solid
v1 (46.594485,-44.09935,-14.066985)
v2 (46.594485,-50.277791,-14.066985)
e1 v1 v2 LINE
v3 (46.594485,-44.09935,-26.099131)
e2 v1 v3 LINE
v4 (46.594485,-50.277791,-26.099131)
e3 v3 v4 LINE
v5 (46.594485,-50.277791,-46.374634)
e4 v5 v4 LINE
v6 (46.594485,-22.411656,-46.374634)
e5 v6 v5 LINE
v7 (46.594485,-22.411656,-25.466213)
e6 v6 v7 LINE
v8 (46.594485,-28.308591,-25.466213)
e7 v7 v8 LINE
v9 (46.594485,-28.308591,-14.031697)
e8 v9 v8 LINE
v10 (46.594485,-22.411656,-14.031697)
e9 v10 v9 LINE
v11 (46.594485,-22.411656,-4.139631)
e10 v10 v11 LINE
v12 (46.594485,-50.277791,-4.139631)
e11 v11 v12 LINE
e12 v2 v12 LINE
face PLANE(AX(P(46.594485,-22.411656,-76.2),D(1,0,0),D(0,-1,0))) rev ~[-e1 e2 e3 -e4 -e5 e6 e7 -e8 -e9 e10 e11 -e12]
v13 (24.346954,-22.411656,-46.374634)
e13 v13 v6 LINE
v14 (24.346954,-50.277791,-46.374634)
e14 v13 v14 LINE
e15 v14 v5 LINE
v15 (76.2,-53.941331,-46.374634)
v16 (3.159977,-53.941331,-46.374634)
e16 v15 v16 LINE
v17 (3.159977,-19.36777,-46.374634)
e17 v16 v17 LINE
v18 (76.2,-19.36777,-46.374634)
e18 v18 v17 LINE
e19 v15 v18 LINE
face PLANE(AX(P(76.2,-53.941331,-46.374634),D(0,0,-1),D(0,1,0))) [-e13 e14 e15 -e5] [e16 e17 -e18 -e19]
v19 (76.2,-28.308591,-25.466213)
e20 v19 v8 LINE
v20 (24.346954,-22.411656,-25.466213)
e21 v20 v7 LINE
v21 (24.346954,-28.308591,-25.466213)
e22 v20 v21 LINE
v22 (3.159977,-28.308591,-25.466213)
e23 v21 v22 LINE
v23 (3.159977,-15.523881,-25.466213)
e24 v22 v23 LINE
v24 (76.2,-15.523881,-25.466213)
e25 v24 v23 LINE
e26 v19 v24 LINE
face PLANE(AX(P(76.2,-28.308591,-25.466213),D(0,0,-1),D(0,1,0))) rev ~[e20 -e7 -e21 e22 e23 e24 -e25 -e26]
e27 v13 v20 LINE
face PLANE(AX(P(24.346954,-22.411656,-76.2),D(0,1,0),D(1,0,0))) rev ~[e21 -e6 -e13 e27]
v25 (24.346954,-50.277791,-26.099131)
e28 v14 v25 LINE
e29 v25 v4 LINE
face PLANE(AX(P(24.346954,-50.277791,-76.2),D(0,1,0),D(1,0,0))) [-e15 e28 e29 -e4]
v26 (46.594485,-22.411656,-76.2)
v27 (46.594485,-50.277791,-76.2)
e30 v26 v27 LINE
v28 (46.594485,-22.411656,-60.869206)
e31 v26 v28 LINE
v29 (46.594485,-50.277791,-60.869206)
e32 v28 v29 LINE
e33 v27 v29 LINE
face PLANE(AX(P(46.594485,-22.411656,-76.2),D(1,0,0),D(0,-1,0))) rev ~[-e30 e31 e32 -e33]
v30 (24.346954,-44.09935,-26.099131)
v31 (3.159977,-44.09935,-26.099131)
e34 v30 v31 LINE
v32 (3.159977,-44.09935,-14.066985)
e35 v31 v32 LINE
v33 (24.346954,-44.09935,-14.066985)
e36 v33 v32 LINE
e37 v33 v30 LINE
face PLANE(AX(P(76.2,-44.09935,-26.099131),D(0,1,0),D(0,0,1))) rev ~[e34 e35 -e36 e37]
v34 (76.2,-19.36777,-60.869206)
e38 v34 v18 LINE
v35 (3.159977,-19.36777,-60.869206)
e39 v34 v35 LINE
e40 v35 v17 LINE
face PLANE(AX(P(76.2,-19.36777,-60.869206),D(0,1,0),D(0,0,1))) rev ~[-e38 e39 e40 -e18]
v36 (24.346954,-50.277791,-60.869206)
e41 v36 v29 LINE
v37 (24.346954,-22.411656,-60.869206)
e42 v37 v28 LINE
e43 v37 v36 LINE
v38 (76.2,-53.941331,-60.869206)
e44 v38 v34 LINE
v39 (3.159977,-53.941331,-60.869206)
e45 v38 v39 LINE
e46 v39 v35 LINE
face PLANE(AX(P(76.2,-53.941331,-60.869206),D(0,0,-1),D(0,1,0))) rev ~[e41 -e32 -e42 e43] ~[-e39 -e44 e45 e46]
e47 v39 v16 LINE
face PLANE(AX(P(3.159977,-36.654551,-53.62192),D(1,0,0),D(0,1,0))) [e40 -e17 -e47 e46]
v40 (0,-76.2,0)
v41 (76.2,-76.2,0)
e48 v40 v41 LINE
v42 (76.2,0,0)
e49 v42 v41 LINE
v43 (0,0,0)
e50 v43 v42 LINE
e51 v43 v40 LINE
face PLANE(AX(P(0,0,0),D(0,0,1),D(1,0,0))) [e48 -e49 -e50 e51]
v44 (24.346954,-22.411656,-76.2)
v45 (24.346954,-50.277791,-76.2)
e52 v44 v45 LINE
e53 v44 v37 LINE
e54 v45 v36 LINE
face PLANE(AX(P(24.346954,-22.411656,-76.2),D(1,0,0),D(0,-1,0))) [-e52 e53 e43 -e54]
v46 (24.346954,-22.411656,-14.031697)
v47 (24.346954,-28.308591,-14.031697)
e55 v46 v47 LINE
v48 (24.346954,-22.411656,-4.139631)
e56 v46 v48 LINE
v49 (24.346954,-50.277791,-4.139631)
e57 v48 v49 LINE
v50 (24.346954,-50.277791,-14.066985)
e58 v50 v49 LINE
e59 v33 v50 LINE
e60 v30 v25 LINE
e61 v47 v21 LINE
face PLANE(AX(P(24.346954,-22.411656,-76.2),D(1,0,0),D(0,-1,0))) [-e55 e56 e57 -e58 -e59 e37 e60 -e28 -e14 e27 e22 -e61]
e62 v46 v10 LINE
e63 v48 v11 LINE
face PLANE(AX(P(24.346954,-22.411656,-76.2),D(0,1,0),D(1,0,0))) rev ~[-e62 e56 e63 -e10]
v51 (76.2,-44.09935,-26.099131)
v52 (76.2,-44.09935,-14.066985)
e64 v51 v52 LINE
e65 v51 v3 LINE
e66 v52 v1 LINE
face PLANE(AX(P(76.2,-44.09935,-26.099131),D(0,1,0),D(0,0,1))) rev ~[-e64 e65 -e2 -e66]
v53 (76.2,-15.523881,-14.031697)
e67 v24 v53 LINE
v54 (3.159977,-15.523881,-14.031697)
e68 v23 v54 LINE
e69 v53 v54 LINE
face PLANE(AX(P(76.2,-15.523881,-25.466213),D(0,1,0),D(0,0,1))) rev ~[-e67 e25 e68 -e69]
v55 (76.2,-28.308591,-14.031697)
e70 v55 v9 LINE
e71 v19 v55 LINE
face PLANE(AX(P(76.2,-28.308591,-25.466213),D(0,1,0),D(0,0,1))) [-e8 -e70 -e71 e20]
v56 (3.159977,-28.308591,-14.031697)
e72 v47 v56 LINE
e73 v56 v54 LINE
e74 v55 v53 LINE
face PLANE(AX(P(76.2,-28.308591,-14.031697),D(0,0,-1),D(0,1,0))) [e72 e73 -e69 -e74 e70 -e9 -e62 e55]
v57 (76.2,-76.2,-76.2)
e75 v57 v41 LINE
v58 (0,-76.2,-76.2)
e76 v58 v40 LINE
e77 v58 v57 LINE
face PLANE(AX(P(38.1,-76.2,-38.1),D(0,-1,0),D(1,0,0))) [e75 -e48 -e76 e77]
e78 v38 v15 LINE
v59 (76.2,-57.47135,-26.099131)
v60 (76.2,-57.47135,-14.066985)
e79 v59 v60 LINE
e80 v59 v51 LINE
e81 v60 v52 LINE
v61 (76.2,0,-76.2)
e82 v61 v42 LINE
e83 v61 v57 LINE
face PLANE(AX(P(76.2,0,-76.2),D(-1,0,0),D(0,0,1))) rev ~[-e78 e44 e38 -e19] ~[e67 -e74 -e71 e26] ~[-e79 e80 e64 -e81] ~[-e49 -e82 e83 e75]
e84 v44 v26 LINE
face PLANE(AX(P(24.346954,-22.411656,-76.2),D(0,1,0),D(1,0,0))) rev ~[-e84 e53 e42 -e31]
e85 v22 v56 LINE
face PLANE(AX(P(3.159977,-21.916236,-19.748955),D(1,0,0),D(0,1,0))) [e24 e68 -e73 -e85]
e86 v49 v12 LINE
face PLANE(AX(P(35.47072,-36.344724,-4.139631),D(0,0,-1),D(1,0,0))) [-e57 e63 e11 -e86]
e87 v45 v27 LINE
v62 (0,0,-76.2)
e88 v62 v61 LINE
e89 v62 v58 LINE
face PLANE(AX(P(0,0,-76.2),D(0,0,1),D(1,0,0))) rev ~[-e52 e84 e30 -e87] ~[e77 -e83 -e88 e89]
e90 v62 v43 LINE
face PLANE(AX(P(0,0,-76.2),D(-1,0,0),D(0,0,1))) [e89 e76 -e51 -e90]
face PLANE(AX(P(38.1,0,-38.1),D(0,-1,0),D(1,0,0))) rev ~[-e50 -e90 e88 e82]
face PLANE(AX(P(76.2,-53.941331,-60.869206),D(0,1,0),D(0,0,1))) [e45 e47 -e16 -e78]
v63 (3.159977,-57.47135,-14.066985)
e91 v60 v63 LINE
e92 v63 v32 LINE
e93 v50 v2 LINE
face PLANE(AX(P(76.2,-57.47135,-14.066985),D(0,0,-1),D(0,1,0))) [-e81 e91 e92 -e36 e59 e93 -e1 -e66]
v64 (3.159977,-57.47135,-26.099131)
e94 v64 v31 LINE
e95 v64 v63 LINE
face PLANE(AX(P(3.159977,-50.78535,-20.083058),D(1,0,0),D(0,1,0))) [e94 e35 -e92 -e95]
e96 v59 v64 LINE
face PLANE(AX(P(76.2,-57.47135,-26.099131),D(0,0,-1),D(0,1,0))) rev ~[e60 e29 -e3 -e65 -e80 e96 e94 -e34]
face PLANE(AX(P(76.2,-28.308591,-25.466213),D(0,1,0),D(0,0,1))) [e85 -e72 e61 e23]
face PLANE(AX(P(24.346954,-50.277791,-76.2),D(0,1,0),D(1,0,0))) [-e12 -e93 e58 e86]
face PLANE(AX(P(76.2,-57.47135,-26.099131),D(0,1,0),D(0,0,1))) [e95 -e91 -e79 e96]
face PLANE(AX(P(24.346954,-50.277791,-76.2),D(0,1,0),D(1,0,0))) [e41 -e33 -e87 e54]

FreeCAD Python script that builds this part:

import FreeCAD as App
import Part
import Sketcher

V = App.Vector
Q = App.Units.Quantity


def add_polygon(sketch, points):
    """Adds a closed chain of lines whose ends are joined by coincident constraints."""
    first, n = sketch.GeometryCount, len(points)
    for a, b in zip(points, points[1:] + points[:1]):
        sketch.addGeometry(Part.LineSegment(App.Vector(*a, 0), App.Vector(*b, 0)), False)
    for i in range(n):
        sketch.addConstraint(Sketcher.Constraint("Coincident", first + i, 2, first + (i + 1) % n, 1))

doc = App.newDocument("Part")
body = doc.addObject("PartDesign::Body", "Body")

# Sketch on XZ plane
sketch1 = body.newObject("Sketcher::SketchObject", "Sketch")
sketch1.AttachmentSupport = (doc.getObject("XZ_Plane"), [""])
sketch1.MapMode = "FlatFace"
add_polygon(sketch1, [(0, 0), (0, -76), (76, -76), (76, 0)])  # lines 0-3
sketch1.addConstraint([
    Sketcher.Constraint("Vertical", 0),
    Sketcher.Constraint("Horizontal", 1),
    Sketcher.Constraint("Vertical", 2),
    Sketcher.Constraint("Horizontal", 3),
    Sketcher.Constraint("Coincident", 3, 2, -1, 1),
    Sketcher.Constraint("Equal", 3, 0),
    Sketcher.Constraint("DistanceX", 1, 1, 1, 2, Q("3 in")),
])
pad1 = body.newObject("PartDesign::Pad", "Pad")
pad1.Profile = sketch1
pad1.Length = Q("3 in")

# Sketch on YZ plane
sketch2 = body.newObject("Sketcher::SketchObject", "Sketch001")
sketch2.AttachmentSupport = (doc.getObject("YZ_Plane"), [""])
sketch2.MapMode = "FlatFace"
sketch2.AttachmentOffset = App.Placement(V(0, 0, 3 * 25.4), App.Rotation())
add_polygon(sketch2, [(-28, -14), (-28, -25), (-16, -25), (-16, -14)])  # lines 0-3
add_polygon(sketch2, [(-57, -14), (-57, -26), (-44, -26), (-44, -14)])  # lines 4-7
add_polygon(sketch2, [(-54, -46), (-54, -61), (-19, -61), (-19, -46)])  # lines 8-11
sketch2.addConstraint([
    Sketcher.Constraint("Vertical", 0),
    Sketcher.Constraint("Horizontal", 1),
    Sketcher.Constraint("Vertical", 2),
    Sketcher.Constraint("Horizontal", 3),
    Sketcher.Constraint("Vertical", 4),
    Sketcher.Constraint("Horizontal", 5),
    Sketcher.Constraint("Vertical", 6),
    Sketcher.Constraint("Horizontal", 7),
    Sketcher.Constraint("Vertical", 8),
    Sketcher.Constraint("Horizontal", 9),
    Sketcher.Constraint("Vertical", 10),
    Sketcher.Constraint("Horizontal", 11),
    Sketcher.Constraint("DistanceX", 5, 1, 5, 2, 13.372),
    Sketcher.Constraint("DistanceX", 1, 1, 1, 2, 12.78471),
    Sketcher.Constraint("DistanceX", 9, 1, 9, 2, 34.573561),
    Sketcher.Constraint("DistanceY", 8, 2, 8, 1, 14.494572),
    Sketcher.Constraint("DistanceY", 0, 2, 0, 1, 11.434516),
    Sketcher.Constraint("DistanceY", 4, 2, 4, 1, 12.032146),
    Sketcher.Constraint("DistanceX", 0, 2, -1, 1, 28.308591),
    Sketcher.Constraint("DistanceX", 4, 2, -1, 1, 57.47135),
    Sketcher.Constraint("DistanceY", 4, 2, -1, 1, 26.099131),
    Sketcher.Constraint("DistanceX", 8, 2, -1, 1, 53.941331),
    Sketcher.Constraint("DistanceY", 4, 2, 0, 2, 0.632918),
    Sketcher.Constraint("DistanceY", 8, 2, 7, 2, 46.802221),
])
pocket1 = body.newObject("PartDesign::Pocket", "Pocket")
pocket1.Profile = sketch2
pocket1.Length = 73.040023

# Sketch on XY plane
sketch3 = body.newObject("Sketcher::SketchObject", "Sketch002")
sketch3.AttachmentSupport = (doc.getObject("XY_Plane"), [""])
sketch3.MapMode = "FlatFace"
sketch3.AttachmentOffset = App.Placement(V(0, 0, -3 * 25.4), App.Rotation())
add_polygon(sketch3, [(24, -50), (24, -22), (47, -22), (47, -50)])  # lines 0-3
sketch3.addConstraint([
    Sketcher.Constraint("Vertical", 0),
    Sketcher.Constraint("Horizontal", 1),
    Sketcher.Constraint("Vertical", 2),
    Sketcher.Constraint("Horizontal", 3),
    Sketcher.Constraint("DistanceX", 1, 1, 1, 2, 22.247531),
    Sketcher.Constraint("DistanceY", 0, 1, 0, 2, 27.866135),
    Sketcher.Constraint("DistanceY", 2, 2, -1, 1, 50.277791),
    Sketcher.Constraint("DistanceX", -1, 1, 0, 2, 24.346954),
])
pocket2 = body.newObject("PartDesign::Pocket", "Pocket001")
pocket2.Profile = sketch3
pocket2.Length = 72.060369
pocket2.Reversed = True

doc.recompute()
